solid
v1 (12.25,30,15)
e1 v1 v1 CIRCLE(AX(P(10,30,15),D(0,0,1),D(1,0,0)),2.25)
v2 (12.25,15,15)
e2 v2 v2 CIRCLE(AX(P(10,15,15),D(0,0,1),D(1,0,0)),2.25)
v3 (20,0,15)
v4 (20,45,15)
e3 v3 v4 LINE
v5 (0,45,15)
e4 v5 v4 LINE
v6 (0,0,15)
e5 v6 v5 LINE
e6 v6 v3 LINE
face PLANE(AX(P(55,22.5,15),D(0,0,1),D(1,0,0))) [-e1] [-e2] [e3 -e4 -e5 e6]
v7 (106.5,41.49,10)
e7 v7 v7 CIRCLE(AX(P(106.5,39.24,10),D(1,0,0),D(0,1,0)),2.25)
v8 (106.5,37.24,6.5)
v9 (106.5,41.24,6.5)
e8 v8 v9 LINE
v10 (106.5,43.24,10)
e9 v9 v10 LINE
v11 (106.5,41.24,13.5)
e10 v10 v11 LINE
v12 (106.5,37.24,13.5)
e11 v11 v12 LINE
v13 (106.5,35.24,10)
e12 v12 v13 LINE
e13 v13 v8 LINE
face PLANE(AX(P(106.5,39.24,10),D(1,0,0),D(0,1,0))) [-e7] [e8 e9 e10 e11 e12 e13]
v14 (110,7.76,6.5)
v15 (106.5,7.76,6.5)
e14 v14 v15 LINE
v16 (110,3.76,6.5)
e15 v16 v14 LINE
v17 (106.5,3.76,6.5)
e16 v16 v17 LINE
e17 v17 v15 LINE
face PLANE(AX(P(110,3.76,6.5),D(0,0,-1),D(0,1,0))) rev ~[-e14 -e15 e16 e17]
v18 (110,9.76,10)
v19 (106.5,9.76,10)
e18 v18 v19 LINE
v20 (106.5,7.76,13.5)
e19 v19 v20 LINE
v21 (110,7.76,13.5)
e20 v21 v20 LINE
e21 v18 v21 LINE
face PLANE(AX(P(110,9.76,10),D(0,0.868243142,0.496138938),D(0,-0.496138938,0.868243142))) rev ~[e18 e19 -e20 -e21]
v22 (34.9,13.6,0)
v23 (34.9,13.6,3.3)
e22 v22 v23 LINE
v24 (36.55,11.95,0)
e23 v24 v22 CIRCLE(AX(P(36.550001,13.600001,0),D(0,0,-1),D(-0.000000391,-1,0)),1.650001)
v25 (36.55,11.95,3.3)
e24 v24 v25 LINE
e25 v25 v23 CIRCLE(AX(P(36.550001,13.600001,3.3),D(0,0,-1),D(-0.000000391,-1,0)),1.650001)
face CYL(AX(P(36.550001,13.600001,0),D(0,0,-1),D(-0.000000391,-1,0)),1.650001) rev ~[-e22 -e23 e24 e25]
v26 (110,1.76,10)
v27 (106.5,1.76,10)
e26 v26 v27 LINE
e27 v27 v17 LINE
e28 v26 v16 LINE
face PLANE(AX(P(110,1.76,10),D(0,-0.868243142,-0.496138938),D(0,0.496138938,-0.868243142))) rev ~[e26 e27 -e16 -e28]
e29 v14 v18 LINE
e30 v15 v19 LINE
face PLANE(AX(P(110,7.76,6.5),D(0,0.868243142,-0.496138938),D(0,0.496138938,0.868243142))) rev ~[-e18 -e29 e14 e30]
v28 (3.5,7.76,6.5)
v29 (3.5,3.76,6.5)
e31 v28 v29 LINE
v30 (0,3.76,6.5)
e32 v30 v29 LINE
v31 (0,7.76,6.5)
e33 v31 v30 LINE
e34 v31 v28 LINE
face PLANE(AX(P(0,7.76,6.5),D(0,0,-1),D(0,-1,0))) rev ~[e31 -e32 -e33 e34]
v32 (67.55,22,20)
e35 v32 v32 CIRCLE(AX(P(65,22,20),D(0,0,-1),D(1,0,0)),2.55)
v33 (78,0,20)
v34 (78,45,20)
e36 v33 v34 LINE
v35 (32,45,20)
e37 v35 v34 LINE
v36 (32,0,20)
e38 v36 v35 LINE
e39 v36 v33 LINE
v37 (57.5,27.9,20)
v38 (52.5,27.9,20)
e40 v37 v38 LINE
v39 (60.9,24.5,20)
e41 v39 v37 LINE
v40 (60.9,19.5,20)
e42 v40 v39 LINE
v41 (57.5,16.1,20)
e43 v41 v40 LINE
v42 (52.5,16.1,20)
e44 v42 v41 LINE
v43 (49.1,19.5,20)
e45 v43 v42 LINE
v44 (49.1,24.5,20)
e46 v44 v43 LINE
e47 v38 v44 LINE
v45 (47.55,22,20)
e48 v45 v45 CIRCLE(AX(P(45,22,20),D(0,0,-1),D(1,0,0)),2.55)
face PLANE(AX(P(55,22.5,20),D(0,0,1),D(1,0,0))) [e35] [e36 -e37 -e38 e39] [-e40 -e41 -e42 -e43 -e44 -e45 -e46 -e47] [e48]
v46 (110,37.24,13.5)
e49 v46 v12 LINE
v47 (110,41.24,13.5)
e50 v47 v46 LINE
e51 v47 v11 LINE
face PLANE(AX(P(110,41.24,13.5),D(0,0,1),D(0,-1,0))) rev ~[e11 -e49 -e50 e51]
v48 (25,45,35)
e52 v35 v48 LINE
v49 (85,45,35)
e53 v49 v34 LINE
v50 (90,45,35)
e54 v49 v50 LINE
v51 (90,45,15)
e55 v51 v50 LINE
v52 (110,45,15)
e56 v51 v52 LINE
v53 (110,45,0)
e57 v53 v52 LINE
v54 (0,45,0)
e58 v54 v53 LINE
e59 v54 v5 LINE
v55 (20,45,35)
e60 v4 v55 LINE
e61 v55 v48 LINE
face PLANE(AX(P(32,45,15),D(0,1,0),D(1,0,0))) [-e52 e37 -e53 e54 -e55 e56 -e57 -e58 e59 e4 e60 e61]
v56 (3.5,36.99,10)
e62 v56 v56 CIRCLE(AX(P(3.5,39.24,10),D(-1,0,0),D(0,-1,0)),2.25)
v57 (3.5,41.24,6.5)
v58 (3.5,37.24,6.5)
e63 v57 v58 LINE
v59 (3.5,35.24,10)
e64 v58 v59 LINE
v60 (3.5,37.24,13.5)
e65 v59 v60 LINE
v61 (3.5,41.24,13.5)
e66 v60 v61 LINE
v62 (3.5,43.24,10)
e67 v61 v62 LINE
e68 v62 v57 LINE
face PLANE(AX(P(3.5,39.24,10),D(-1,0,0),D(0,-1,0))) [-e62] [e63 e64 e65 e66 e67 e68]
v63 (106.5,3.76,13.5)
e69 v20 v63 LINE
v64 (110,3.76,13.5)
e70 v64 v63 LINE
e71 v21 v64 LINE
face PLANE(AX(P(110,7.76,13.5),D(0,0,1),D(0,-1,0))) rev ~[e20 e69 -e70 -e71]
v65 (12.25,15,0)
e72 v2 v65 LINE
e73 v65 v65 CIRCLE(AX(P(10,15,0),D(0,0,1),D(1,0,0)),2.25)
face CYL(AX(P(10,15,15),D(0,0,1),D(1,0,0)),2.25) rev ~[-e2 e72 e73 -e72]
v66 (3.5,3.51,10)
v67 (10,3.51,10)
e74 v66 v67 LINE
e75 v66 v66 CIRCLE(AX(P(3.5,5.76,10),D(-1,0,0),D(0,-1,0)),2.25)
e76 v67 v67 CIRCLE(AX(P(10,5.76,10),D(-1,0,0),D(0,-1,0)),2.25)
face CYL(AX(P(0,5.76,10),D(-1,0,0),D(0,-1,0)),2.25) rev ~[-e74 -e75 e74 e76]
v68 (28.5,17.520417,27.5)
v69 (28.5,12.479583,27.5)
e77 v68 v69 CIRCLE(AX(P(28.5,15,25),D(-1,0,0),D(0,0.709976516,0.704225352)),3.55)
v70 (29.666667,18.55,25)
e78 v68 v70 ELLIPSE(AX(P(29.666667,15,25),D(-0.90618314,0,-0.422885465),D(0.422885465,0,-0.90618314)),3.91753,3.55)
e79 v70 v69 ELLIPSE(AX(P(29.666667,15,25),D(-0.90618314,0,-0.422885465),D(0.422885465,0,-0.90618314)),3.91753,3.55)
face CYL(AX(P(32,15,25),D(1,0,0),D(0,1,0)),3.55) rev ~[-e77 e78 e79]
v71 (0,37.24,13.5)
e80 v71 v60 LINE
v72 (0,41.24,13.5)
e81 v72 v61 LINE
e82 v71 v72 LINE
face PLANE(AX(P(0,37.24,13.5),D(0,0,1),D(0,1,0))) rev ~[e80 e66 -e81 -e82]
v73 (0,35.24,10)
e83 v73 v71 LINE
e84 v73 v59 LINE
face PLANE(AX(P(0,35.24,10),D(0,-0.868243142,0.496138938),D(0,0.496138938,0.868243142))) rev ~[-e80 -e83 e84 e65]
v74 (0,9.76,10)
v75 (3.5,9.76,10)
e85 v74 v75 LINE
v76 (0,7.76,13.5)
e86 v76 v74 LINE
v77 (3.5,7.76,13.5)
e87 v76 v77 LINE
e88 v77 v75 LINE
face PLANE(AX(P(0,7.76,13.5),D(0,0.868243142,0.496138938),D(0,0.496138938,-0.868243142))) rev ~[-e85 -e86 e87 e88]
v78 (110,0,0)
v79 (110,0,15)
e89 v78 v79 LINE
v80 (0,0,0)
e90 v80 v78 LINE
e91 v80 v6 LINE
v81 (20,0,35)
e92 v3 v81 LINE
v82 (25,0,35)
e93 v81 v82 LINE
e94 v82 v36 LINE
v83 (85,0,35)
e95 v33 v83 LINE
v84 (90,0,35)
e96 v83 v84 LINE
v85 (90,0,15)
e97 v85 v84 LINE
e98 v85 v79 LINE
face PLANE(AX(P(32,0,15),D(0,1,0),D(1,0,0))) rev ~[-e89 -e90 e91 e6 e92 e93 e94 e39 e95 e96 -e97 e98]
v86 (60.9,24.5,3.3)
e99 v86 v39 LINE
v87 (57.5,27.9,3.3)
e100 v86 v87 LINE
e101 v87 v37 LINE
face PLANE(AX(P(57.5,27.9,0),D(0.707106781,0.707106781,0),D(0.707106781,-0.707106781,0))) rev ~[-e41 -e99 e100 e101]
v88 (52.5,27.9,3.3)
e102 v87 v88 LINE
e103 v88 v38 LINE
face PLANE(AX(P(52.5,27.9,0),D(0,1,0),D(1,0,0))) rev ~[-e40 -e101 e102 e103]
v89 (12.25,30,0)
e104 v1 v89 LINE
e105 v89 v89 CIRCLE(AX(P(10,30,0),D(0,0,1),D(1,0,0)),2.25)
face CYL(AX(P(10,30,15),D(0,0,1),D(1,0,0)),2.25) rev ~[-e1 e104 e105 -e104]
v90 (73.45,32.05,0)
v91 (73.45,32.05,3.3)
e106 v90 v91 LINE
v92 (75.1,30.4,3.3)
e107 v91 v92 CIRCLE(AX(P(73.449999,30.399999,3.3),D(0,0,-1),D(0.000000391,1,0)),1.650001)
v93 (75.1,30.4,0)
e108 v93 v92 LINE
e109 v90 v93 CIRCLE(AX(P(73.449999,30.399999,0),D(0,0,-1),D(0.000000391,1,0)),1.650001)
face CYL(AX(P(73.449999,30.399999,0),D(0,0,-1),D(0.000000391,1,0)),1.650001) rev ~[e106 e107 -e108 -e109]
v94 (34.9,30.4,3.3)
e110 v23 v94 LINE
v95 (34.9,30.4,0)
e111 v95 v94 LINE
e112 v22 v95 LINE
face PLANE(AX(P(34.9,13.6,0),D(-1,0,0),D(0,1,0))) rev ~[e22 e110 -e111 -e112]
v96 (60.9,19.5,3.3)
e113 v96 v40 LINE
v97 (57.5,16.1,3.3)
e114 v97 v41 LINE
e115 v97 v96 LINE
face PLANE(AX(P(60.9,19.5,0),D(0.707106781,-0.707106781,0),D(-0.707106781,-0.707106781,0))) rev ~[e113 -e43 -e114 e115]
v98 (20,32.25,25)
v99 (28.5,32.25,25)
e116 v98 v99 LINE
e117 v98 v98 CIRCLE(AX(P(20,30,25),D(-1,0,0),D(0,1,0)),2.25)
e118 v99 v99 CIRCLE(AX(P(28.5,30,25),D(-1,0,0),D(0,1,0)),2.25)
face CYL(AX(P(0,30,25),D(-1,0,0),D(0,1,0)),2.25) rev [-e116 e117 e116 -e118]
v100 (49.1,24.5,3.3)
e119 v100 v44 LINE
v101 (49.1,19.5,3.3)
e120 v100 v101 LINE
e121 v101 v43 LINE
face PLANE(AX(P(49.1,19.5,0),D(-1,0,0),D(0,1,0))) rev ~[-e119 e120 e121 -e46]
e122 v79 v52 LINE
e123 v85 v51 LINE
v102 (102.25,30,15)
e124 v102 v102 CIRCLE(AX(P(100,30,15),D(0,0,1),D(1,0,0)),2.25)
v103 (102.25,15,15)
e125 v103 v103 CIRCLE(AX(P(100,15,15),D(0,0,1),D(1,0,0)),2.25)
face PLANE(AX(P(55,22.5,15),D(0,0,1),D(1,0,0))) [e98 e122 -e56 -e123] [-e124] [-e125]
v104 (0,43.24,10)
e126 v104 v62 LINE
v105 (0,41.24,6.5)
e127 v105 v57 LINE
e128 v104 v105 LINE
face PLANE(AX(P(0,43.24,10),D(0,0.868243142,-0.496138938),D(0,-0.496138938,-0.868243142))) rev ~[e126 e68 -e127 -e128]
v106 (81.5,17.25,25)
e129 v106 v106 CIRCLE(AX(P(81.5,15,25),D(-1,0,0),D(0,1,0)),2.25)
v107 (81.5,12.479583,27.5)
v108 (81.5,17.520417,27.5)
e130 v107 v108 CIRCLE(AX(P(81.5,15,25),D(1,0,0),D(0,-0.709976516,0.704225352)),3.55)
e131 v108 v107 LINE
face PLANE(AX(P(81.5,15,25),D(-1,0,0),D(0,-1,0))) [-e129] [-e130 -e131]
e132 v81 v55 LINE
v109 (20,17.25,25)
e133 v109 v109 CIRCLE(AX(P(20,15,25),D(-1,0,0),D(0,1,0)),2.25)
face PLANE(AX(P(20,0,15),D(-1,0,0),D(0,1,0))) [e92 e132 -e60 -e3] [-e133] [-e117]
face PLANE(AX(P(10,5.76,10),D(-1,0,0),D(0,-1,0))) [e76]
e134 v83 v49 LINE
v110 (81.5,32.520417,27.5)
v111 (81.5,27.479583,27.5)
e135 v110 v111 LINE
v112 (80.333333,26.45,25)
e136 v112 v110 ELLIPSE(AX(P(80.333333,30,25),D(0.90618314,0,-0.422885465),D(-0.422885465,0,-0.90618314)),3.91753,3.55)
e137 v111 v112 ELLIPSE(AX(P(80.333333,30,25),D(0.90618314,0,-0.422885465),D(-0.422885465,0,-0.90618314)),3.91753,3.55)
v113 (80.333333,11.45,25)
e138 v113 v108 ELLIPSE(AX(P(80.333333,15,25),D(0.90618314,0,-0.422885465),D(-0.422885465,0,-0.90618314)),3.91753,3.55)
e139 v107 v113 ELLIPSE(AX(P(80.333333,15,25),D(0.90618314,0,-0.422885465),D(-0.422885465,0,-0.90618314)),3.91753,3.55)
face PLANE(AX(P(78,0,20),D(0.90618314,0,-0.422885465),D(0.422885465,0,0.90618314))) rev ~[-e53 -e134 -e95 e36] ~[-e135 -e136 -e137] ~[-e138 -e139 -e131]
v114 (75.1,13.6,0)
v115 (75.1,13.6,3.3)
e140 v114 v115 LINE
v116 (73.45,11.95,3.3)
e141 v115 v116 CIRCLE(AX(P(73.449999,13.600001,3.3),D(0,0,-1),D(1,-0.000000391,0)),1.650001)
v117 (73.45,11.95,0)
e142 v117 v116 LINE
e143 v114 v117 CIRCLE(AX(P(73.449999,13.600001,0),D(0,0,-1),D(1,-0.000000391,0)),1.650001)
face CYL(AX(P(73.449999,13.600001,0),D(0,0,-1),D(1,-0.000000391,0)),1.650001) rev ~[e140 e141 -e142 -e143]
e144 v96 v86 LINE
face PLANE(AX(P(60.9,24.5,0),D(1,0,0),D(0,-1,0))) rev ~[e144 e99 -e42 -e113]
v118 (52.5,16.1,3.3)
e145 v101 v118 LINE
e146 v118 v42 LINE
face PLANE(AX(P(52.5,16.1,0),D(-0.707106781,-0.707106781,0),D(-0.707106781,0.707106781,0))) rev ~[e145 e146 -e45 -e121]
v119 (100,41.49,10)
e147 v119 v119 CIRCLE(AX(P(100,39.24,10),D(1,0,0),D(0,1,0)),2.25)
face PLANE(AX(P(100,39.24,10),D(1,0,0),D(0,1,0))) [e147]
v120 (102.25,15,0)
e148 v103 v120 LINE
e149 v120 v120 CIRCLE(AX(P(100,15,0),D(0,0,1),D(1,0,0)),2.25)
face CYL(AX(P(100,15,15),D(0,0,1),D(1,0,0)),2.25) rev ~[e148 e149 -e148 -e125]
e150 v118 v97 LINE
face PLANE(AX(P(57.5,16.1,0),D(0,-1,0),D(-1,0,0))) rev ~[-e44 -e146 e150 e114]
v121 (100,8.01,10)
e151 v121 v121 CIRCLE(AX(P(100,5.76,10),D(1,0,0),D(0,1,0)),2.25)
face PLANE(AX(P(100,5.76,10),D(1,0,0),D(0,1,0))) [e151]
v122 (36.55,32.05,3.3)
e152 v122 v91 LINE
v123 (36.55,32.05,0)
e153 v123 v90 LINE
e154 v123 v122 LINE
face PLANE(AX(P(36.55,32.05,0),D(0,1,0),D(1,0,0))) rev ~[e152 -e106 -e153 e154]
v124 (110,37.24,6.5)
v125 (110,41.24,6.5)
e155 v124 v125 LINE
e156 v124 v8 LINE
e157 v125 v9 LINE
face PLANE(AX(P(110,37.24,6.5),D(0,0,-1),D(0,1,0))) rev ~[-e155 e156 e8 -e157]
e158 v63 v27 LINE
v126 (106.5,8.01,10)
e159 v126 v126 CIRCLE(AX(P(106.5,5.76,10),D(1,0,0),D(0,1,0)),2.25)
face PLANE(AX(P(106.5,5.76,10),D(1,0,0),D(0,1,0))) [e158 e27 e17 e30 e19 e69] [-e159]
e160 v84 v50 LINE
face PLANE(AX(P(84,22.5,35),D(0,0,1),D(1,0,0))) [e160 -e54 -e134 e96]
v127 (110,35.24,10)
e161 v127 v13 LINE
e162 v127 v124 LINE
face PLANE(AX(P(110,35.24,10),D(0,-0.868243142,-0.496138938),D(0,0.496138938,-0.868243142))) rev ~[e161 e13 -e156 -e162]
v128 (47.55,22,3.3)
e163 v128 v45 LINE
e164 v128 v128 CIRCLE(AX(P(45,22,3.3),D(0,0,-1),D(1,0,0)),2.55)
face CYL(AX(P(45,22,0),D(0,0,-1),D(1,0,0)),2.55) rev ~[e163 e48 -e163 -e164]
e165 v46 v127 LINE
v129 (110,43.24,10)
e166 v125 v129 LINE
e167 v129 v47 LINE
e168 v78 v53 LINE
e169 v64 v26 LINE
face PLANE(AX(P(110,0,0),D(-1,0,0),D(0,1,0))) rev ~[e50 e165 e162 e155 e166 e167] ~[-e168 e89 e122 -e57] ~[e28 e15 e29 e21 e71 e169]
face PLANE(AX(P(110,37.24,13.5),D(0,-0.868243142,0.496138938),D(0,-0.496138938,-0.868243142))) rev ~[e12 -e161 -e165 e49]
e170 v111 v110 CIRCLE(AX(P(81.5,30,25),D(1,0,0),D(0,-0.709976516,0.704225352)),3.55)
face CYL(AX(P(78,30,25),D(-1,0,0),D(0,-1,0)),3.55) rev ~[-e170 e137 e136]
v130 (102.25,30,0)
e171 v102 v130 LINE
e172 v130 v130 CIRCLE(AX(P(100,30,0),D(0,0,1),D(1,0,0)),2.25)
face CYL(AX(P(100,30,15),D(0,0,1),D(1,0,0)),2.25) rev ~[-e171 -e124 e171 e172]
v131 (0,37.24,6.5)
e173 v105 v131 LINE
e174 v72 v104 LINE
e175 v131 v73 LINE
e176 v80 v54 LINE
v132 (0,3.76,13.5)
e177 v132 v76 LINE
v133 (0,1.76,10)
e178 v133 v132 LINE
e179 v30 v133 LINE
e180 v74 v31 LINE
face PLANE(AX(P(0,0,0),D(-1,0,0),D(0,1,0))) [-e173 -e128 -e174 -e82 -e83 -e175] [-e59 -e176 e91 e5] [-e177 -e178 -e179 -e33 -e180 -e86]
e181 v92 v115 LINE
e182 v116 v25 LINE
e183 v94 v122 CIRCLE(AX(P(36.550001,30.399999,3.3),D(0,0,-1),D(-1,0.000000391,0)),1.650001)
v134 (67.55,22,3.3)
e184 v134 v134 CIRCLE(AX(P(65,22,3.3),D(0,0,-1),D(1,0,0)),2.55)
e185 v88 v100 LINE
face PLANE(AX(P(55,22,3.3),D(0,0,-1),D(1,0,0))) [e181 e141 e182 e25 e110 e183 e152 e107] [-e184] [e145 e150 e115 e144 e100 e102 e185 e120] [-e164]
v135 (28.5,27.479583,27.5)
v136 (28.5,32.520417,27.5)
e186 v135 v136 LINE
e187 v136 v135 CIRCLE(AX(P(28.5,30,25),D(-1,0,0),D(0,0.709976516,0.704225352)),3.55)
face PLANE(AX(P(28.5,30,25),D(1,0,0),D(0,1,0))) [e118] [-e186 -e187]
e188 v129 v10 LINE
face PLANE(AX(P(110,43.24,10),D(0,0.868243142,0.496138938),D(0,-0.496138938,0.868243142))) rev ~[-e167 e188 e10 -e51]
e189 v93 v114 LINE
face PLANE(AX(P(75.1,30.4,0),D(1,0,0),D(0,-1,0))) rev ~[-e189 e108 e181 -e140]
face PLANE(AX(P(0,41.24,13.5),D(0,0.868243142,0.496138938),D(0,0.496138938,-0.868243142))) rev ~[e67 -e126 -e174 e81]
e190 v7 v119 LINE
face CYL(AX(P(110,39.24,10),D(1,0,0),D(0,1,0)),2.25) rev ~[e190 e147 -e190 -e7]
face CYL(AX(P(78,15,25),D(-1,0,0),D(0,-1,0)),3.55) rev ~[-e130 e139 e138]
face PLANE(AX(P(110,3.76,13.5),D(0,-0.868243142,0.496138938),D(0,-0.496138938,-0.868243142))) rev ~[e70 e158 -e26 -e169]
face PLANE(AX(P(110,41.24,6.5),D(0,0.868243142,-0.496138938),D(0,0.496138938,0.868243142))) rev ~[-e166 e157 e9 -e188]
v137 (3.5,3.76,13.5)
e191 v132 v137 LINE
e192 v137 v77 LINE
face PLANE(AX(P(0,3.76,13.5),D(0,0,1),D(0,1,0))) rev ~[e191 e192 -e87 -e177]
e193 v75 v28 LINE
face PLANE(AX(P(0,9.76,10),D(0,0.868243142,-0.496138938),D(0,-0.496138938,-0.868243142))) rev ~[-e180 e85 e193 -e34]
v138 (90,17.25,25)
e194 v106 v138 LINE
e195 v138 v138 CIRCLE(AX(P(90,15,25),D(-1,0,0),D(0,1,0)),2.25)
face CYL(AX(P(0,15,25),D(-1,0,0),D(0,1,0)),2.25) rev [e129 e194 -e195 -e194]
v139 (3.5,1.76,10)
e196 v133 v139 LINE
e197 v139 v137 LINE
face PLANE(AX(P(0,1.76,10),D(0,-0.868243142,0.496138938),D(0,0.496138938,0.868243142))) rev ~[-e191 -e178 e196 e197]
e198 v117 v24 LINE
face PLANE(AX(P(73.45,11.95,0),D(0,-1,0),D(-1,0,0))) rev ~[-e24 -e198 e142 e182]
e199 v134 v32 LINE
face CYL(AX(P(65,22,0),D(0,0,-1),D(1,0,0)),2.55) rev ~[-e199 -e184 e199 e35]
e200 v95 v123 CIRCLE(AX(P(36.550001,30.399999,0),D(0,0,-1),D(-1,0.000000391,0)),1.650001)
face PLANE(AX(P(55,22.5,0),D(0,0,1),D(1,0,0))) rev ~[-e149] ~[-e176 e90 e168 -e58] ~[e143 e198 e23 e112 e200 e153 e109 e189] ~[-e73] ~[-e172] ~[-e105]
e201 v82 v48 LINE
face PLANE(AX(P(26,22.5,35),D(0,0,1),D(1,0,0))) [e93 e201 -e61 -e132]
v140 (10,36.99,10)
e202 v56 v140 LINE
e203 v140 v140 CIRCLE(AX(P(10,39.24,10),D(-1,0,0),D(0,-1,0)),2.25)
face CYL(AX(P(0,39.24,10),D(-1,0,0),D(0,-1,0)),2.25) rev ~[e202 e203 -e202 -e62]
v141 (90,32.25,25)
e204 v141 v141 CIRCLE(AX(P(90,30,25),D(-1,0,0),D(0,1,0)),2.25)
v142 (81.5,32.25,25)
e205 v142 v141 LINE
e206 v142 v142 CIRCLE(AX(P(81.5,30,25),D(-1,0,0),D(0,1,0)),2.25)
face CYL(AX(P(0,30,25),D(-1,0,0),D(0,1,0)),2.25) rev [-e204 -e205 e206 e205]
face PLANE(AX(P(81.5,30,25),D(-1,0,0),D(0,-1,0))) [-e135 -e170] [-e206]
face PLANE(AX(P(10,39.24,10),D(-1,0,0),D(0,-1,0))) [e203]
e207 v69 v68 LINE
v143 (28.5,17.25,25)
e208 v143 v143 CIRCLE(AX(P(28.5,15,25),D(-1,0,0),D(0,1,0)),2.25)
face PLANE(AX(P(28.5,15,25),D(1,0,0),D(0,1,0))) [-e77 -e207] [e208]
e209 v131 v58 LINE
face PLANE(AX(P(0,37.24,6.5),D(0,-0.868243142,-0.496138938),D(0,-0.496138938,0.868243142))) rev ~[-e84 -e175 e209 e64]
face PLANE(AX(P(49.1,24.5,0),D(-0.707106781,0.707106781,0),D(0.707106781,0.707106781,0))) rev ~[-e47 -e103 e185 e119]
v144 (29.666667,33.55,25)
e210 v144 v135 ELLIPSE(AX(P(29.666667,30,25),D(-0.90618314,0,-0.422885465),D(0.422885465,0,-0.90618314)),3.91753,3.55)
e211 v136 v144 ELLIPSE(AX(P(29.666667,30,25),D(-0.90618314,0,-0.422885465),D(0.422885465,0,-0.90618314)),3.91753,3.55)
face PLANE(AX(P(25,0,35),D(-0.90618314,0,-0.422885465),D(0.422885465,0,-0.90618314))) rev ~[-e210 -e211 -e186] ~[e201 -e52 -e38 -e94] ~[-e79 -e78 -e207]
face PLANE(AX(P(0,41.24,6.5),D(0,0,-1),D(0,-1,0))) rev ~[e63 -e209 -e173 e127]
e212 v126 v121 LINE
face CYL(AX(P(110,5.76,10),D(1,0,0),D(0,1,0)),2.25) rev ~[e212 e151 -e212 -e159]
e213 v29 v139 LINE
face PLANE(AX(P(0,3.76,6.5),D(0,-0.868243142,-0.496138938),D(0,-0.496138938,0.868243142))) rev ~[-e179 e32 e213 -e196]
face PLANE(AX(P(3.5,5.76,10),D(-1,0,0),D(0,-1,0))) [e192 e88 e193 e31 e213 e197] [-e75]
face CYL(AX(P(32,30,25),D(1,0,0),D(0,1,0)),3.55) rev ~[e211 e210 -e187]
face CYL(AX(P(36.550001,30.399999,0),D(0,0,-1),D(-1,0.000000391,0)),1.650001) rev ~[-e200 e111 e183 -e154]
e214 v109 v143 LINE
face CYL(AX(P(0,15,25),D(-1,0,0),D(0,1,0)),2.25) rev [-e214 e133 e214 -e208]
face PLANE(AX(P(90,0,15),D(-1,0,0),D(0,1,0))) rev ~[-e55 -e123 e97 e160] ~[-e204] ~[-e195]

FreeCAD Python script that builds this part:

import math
import FreeCAD as App
import Part
import Sketcher

V = App.Vector

doc = App.newDocument("Part")
body = doc.addObject("PartDesign::Body", "Body")

# Sketch on XY plane
sketch1 = body.newObject("Sketcher::SketchObject", "Sketch")
sketch1.AttachmentSupport = (doc.getObject("XY_Plane"), [""])
sketch1.MapMode = "FlatFace"
sketch1.addGeometry(Part.LineSegment(V(0, 45, 0), V(0, 0, 0)), False)
sketch1.addGeometry(Part.LineSegment(V(0, 0, 0), V(110, 0, 0)), False)
sketch1.addGeometry(Part.LineSegment(V(110, 0, 0), V(110, 45, 0)), False)
sketch1.addGeometry(Part.LineSegment(V(110, 45, 0), V(0, 45, 0)), False)
sketch1.addConstraint(Sketcher.Constraint("Coincident", 0, 2, 1, 1))
sketch1.addConstraint(Sketcher.Constraint("Coincident", 1, 2, 2, 1))
sketch1.addConstraint(Sketcher.Constraint("Coincident", 2, 2, 3, 1))
sketch1.addConstraint(Sketcher.Constraint("Coincident", 3, 2, 0, 1))
sketch1.addConstraint(Sketcher.Constraint("Vertical", 0))
sketch1.addConstraint(Sketcher.Constraint("Horizontal", 1))
sketch1.addConstraint(Sketcher.Constraint("Vertical", 2))
sketch1.addConstraint(Sketcher.Constraint("Horizontal", 3))
sketch1.addConstraint(Sketcher.Constraint("Coincident", 0, 2, -1, 1))
sketch1.addConstraint(Sketcher.Constraint("DistanceX", 1, 1, 1, 2, 110.0))
sketch1.addConstraint(Sketcher.Constraint("DistanceY", 0, 2, 0, 1, 45.0))
pad1 = body.newObject("PartDesign::Pad", "Pad")
pad1.Profile = sketch1
pad1.Length = 15

# Sketch on XY plane
sketch2 = body.newObject("Sketcher::SketchObject", "Sketch001")
sketch2.AttachmentSupport = (doc.getObject("XY_Plane"), [""])
sketch2.MapMode = "FlatFace"
sketch2.AttachmentOffset = App.Placement(V(0, 0, 15), App.Rotation())
sketch2.addGeometry(Part.LineSegment(V(20, 45, 0), V(20, 0, 0)), False)
sketch2.addGeometry(Part.LineSegment(V(20, 0, 0), V(32, 0, 0)), False)
sketch2.addGeometry(Part.LineSegment(V(32, 0, 0), V(32, 45, 0)), False)
sketch2.addGeometry(Part.LineSegment(V(32, 45, 0), V(20, 45, 0)), False)
sketch2.addGeometry(Part.LineSegment(V(78, 45, 0), V(78, 0, 0)), False)
sketch2.addGeometry(Part.LineSegment(V(78, 0, 0), V(90, 0, 0)), False)
sketch2.addGeometry(Part.LineSegment(V(90, 0, 0), V(90, 45, 0)), False)
sketch2.addGeometry(Part.LineSegment(V(90, 45, 0), V(78, 45, 0)), False)
sketch2.addConstraint(Sketcher.Constraint("Coincident", 0, 2, 1, 1))
sketch2.addConstraint(Sketcher.Constraint("Coincident", 1, 2, 2, 1))
sketch2.addConstraint(Sketcher.Constraint("Coincident", 2, 2, 3, 1))
sketch2.addConstraint(Sketcher.Constraint("Coincident", 3, 2, 0, 1))
sketch2.addConstraint(Sketcher.Constraint("Coincident", 4, 2, 5, 1))
sketch2.addConstraint(Sketcher.Constraint("Coincident", 5, 2, 6, 1))
sketch2.addConstraint(Sketcher.Constraint("Coincident", 6, 2, 7, 1))
sketch2.addConstraint(Sketcher.Constraint("Coincident", 7, 2, 4, 1))
sketch2.addConstraint(Sketcher.Constraint("Vertical", 0))
sketch2.addConstraint(Sketcher.Constraint("Horizontal", 1))
sketch2.addConstraint(Sketcher.Constraint("Vertical", 2))
sketch2.addConstraint(Sketcher.Constraint("Horizontal", 3))
sketch2.addConstraint(Sketcher.Constraint("Vertical", 4))
sketch2.addConstraint(Sketcher.Constraint("Horizontal", 5))
sketch2.addConstraint(Sketcher.Constraint("Vertical", 6))
sketch2.addConstraint(Sketcher.Constraint("Horizontal", 7))
sketch2.addConstraint(Sketcher.Constraint("PointOnObject", 0, 2, -1))
sketch2.addConstraint(Sketcher.Constraint("PointOnObject", 4, 2, -1))
sketch2.addConstraint(Sketcher.Constraint("Horizontal", 3, 2, 6, 2))
sketch2.addConstraint(Sketcher.Constraint("Equal", 3, 5))
sketch2.addConstraint(Sketcher.Constraint("DistanceX", 1, 1, 1, 2, 12.0))
sketch2.addConstraint(Sketcher.Constraint("DistanceY", 0, 2, 0, 1, 45.0))
sketch2.addConstraint(Sketcher.Constraint("DistanceX", -1, 1, 0, 2, 20.0))
sketch2.addConstraint(Sketcher.Constraint("DistanceX", -1, 1, 4, 2, 78.0))
pad2 = body.newObject("PartDesign::Pad", "Pad001")
pad2.Profile = sketch2
pad2.Length = 20

# Sketch on YZ plane
sketch3 = body.newObject("Sketcher::SketchObject", "Sketch002")
sketch3.AttachmentSupport = (doc.getObject("YZ_Plane"), [""])
sketch3.MapMode = "FlatFace"
sketch3.addGeometry(Part.Circle(V(15, 25, 0), V(0, 0, 1), 2.2), False)
sketch3.addGeometry(Part.Circle(V(30, 25, 0), V(0, 0, 1), 2.2), False)
sketch3.addConstraint(Sketcher.Constraint("Equal", 0, 1))
sketch3.addConstraint(Sketcher.Constraint("Horizontal", 0, 3, 1, 3))
sketch3.addConstraint(Sketcher.Constraint("Diameter", 0, 4.5))
sketch3.addConstraint(Sketcher.Constraint("DistanceX", -1, 1, 0, 3, 15.0))
sketch3.addConstraint(Sketcher.Constraint("DistanceY", -1, 1, 0, 3, 25.0))
sketch3.addConstraint(Sketcher.Constraint("DistanceX", -1, 1, 1, 3, 30.0))
pocket1 = body.newObject("PartDesign::Pocket", "Pocket")
pocket1.Profile = sketch3
pocket1.Type = "ThroughAll"
pocket1.Reversed = True

# Sketch on XY plane
sketch4 = body.newObject("Sketcher::SketchObject", "Sketch003")
sketch4.AttachmentSupport = (doc.getObject("XY_Plane"), [""])
sketch4.MapMode = "FlatFace"
sketch4.AttachmentOffset = App.Placement(V(0, 0, 15), App.Rotation())
sketch4.addGeometry(Part.Circle(V(10, 30, 0), V(0, 0, 1), 2.2), False)
sketch4.addGeometry(Part.Circle(V(10, 15, 0), V(0, 0, 1), 2.2), False)
sketch4.addConstraint(Sketcher.Constraint("Equal", 0, 1))
sketch4.addConstraint(Sketcher.Constraint("Vertical", 0, 3, 1, 3))
sketch4.addConstraint(Sketcher.Constraint("Diameter", 0, 4.5))
sketch4.addConstraint(Sketcher.Constraint("DistanceX", -1, 1, 0, 3, 10.0))
sketch4.addConstraint(Sketcher.Constraint("DistanceY", -1, 1, 0, 3, 30.0))
sketch4.addConstraint(Sketcher.Constraint("DistanceY", -1, 1, 1, 3, 15.0))
pocket2 = body.newObject("PartDesign::Pocket", "Pocket001")
pocket2.Profile = sketch4
pocket2.Type = "ThroughAll"

# Sketch on XY plane
sketch5 = body.newObject("Sketcher::SketchObject", "Sketch004")
sketch5.AttachmentSupport = (doc.getObject("XY_Plane"), [""])
sketch5.MapMode = "FlatFace"
sketch5.AttachmentOffset = App.Placement(V(0, 0, 15), App.Rotation())
sketch5.addGeometry(Part.Circle(V(100, 30, 0), V(0, 0, 1), 2.2), False)
sketch5.addGeometry(Part.Circle(V(100, 15, 0), V(0, 0, 1), 2.2), False)
sketch5.addConstraint(Sketcher.Constraint("Equal", 0, 1))
sketch5.addConstraint(Sketcher.Constraint("Vertical", 0, 3, 1, 3))
sketch5.addConstraint(Sketcher.Constraint("Diameter", 0, 4.5))
sketch5.addConstraint(Sketcher.Constraint("DistanceX", -1, 1, 0, 3, 100.0))
sketch5.addConstraint(Sketcher.Constraint("DistanceY", -1, 1, 0, 3, 30.0))
sketch5.addConstraint(Sketcher.Constraint("DistanceY", -1, 1, 1, 3, 15.0))
pocket3 = body.newObject("PartDesign::Pocket", "Pocket002")
pocket3.Profile = sketch5
pocket3.Type = "ThroughAll"

# Sketch on YZ plane
sketch6 = body.newObject("Sketcher::SketchObject", "Sketch005")
sketch6.AttachmentSupport = (doc.getObject("YZ_Plane"), [""])
sketch6.MapMode = "FlatFace"
sketch6.AttachmentOffset = App.Placement(V(0, 0, 78), App.Rotation())
sketch6.addGeometry(Part.Circle(V(30, 25, 0), V(0, 0, 1), 3.5), False)
sketch6.addGeometry(Part.Circle(V(15, 25, 0), V(0, 0, 1), 3.5), False)
sketch6.addConstraint(Sketcher.Constraint("Equal", 0, 1))
sketch6.addConstraint(Sketcher.Constraint("Horizontal", 0, 3, 1, 3))
sketch6.addConstraint(Sketcher.Constraint("Diameter", 0, 7.1))
sketch6.addConstraint(Sketcher.Constraint("DistanceX", -1, 1, 0, 3, 30.0))
sketch6.addConstraint(Sketcher.Constraint("DistanceY", -1, 1, 0, 3, 25.0))
sketch6.addConstraint(Sketcher.Constraint("DistanceX", -1, 1, 1, 3, 15.0))
pocket4 = body.newObject("PartDesign::Pocket", "Pocket003")
pocket4.Profile = sketch6
pocket4.Length = 3.5
pocket4.Reversed = True

# Sketch on YZ plane
sketch7 = body.newObject("Sketcher::SketchObject", "Sketch006")
sketch7.AttachmentSupport = (doc.getObject("YZ_Plane"), [""])
sketch7.MapMode = "FlatFace"
sketch7.AttachmentOffset = App.Placement(V(0, 0, 32), App.Rotation())
sketch7.addGeometry(Part.Circle(V(15, 25, 0), V(0, 0, 1), 3.5), False)
sketch7.addGeometry(Part.Circle(V(30, 25, 0), V(0, 0, 1), 3.5), False)
sketch7.addConstraint(Sketcher.Constraint("Equal", 0, 1))
sketch7.addConstraint(Sketcher.Constraint("Horizontal", 0, 3, 1, 3))
sketch7.addConstraint(Sketcher.Constraint("Diameter", 0, 7.1))
sketch7.addConstraint(Sketcher.Constraint("DistanceX", -1, 1, 0, 3, 15.0))
sketch7.addConstraint(Sketcher.Constraint("DistanceY", -1, 1, 0, 3, 25.0))
sketch7.addConstraint(Sketcher.Constraint("DistanceX", -1, 1, 1, 3, 30.0))
pocket5 = body.newObject("PartDesign::Pocket", "Pocket004")
pocket5.Profile = sketch7
pocket5.Length = 3.5

# Sketch on XY plane
sketch8 = body.newObject("Sketcher::SketchObject", "Sketch007")
sketch8.AttachmentSupport = (doc.getObject("XY_Plane"), [""])
sketch8.MapMode = "FlatFace"
sketch8.AttachmentOffset = App.Placement(V(0, 0, 15), App.Rotation())
sketch8.addGeometry(Part.LineSegment(V(32, 45, 0), V(32, 0, 0)), False)
sketch8.addGeometry(Part.LineSegment(V(32, 0, 0), V(78, 0, 0)), False)
sketch8.addGeometry(Part.LineSegment(V(78, 0, 0), V(78, 45, 0)), False)
sketch8.addGeometry(Part.LineSegment(V(78, 45, 0), V(32, 45, 0)), False)
sketch8.addConstraint(Sketcher.Constraint("Coincident", 0, 2, 1, 1))
sketch8.addConstraint(Sketcher.Constraint("Coincident", 1, 2, 2, 1))
sketch8.addConstraint(Sketcher.Constraint("Coincident", 2, 2, 3, 1))
sketch8.addConstraint(Sketcher.Constraint("Coincident", 3, 2, 0, 1))
sketch8.addConstraint(Sketcher.Constraint("Vertical", 0))
sketch8.addConstraint(Sketcher.Constraint("Horizontal", 1))
sketch8.addConstraint(Sketcher.Constraint("Vertical", 2))
sketch8.addConstraint(Sketcher.Constraint("Horizontal", 3))
sketch8.addConstraint(Sketcher.Constraint("PointOnObject", 0, 2, -1))
sketch8.addConstraint(Sketcher.Constraint("DistanceX", 1, 1, 1, 2, 46.0))
sketch8.addConstraint(Sketcher.Constraint("DistanceY", 0, 2, 0, 1, 45.0))
sketch8.addConstraint(Sketcher.Constraint("DistanceX", -1, 1, 0, 2, 32.0))
pad3 = body.newObject("PartDesign::Pad", "Pad002")
pad3.Profile = sketch8
pad3.Length = 5

# Sketch on XZ plane
sketch9 = body.newObject("Sketcher::SketchObject", "Sketch008")
sketch9.AttachmentSupport = (doc.getObject("XZ_Plane"), [""])
sketch9.MapMode = "FlatFace"
sketch9.addGeometry(Part.LineSegment(V(32, 20, 0), V(32, 35, 0)), False)
sketch9.addGeometry(Part.LineSegment(V(32, 35, 0), V(25, 35, 0)), False)
sketch9.addGeometry(Part.LineSegment(V(25, 35, 0), V(32, 20, 0)), False)
sketch9.addGeometry(Part.LineSegment(V(85, 35, 0), V(78, 35, 0)), False)
sketch9.addGeometry(Part.LineSegment(V(78, 35, 0), V(78, 20, 0)), False)
sketch9.addGeometry(Part.LineSegment(V(78, 20, 0), V(85, 35, 0)), False)
sketch9.addConstraint(Sketcher.Constraint("Coincident", 0, 2, 1, 1))
sketch9.addConstraint(Sketcher.Constraint("Coincident", 1, 2, 2, 1))
sketch9.addConstraint(Sketcher.Constraint("Coincident", 2, 2, 0, 1))
sketch9.addConstraint(Sketcher.Constraint("Coincident", 3, 2, 4, 1))
sketch9.addConstraint(Sketcher.Constraint("Coincident", 4, 2, 5, 1))
sketch9.addConstraint(Sketcher.Constraint("Coincident", 5, 2, 3, 1))
sketch9.addConstraint(Sketcher.Constraint("Vertical", 0))
sketch9.addConstraint(Sketcher.Constraint("Horizontal", 1))
sketch9.addConstraint(Sketcher.Constraint("Horizontal", 3))
sketch9.addConstraint(Sketcher.Constraint("Vertical", 4))
sketch9.addConstraint(Sketcher.Constraint("Horizontal", 1, 2, 3, 2))
sketch9.addConstraint(Sketcher.Constraint("Horizontal", 2, 2, 4, 2))
sketch9.addConstraint(Sketcher.Constraint("Equal", 1, 3))
sketch9.addConstraint(Sketcher.Constraint("DistanceX", 1, 2, 1, 1, 7.0))
sketch9.addConstraint(Sketcher.Constraint("DistanceY", 0, 1, 0, 2, 15.0))
sketch9.addConstraint(Sketcher.Constraint("DistanceX", -1, 1, 0, 2, 32.0))
sketch9.addConstraint(Sketcher.Constraint("DistanceY", -1, 1, 0, 2, 35.0))
sketch9.addConstraint(Sketcher.Constraint("DistanceX", -1, 1, 3, 2, 78.0))
pocket6 = body.newObject("PartDesign::Pocket", "Pocket005")
pocket6.Profile = sketch9
pocket6.Type = "ThroughAll"

# Sketch on XY plane
sketch10 = body.newObject("Sketcher::SketchObject", "Sketch009")
sketch10.AttachmentSupport = (doc.getObject("XY_Plane"), [""])
sketch10.MapMode = "FlatFace"
sketch10.addGeometry(Part.LineSegment(V(57.5, 16.1, 0), V(52.5, 16.1, 0)), False)
sketch10.addGeometry(Part.LineSegment(V(52.5, 16.1, 0), V(49.1, 19.5, 0)), False)
sketch10.addGeometry(Part.LineSegment(V(49.1, 19.5, 0), V(49.1, 24.5, 0)), False)
sketch10.addGeometry(Part.LineSegment(V(49.1, 24.5, 0), V(52.5, 27.9, 0)), False)
sketch10.addGeometry(Part.LineSegment(V(52.5, 27.9, 0), V(57.5, 27.9, 0)), False)
sketch10.addGeometry(Part.LineSegment(V(57.5, 27.9, 0), V(60.9, 24.5, 0)), False)
sketch10.addGeometry(Part.LineSegment(V(60.9, 24.5, 0), V(60.9, 19.5, 0)), False)
sketch10.addGeometry(Part.LineSegment(V(60.9, 19.5, 0), V(57.5, 16.1, 0)), False)
sketch10.addGeometry(Part.Circle(V(45, 22, 0), V(0, 0, 1), 2.5), False)
sketch10.addGeometry(Part.Circle(V(65, 22, 0), V(0, 0, 1), 2.5), False)
sketch10.addConstraint(Sketcher.Constraint("Coincident", 0, 2, 1, 1))
sketch10.addConstraint(Sketcher.Constraint("Coincident", 1, 2, 2, 1))
sketch10.addConstraint(Sketcher.Constraint("Coincident", 2, 2, 3, 1))
sketch10.addConstraint(Sketcher.Constraint("Coincident", 3, 2, 4, 1))
sketch10.addConstraint(Sketcher.Constraint("Coincident", 4, 2, 5, 1))
sketch10.addConstraint(Sketcher.Constraint("Coincident", 5, 2, 6, 1))
sketch10.addConstraint(Sketcher.Constraint("Coincident", 6, 2, 7, 1))
sketch10.addConstraint(Sketcher.Constraint("Coincident", 7, 2, 0, 1))
sketch10.addConstraint(Sketcher.Constraint("Horizontal", 0))
sketch10.addConstraint(Sketcher.Constraint("Vertical", 2))
sketch10.addConstraint(Sketcher.Constraint("Horizontal", 4))
sketch10.addConstraint(Sketcher.Constraint("Vertical", 6))
sketch10.addConstraint(Sketcher.Constraint("Equal", 8, 9))
sketch10.addConstraint(Sketcher.Constraint("Perpendicular", 1, 3))
sketch10.addConstraint(Sketcher.Constraint("Perpendicular", 3, 5))
sketch10.addConstraint(Sketcher.Constraint("Perpendicular", 5, 7))
sketch10.addConstraint(Sketcher.Constraint("Horizontal", 8, 3, 9, 3))
sketch10.addConstraint(Sketcher.Constraint("Horizontal", 2, 2, 5, 2))
sketch10.addConstraint(Sketcher.Constraint("Horizontal", 1, 2, 6, 2))
sketch10.addConstraint(Sketcher.Constraint("Vertical", 0, 2, 3, 2))
sketch10.addConstraint(Sketcher.Constraint("Vertical", 4, 2, 7, 2))
sketch10.addConstraint(Sketcher.Constraint("Equal", 4, 2))
sketch10.addConstraint(Sketcher.Constraint("Diameter", 8, 5.1))
sketch10.addConstraint(Sketcher.Constraint("DistanceX", 0, 2, 0, 1, 5.0))
sketch10.addConstraint(Sketcher.Constraint("DistanceX", -1, 1, 8, 3, 45.0))
sketch10.addConstraint(Sketcher.Constraint("DistanceY", -1, 1, 8, 3, 22.0))
sketch10.addConstraint(Sketcher.Constraint("DistanceX", -1, 1, 9, 3, 65.0))
sketch10.addConstraint(Sketcher.Constraint("DistanceX", -1, 1, 0, 2, 52.5))
sketch10.addConstraint(Sketcher.Constraint("DistanceY", -1, 1, 0, 2, 16.1))
sketch10.addConstraint(Sketcher.Constraint("DistanceX", -1, 1, 1, 2, 49.1))
pocket7 = body.newObject("PartDesign::Pocket", "Pocket006")
pocket7.Profile = sketch10
pocket7.Type = "ThroughAll"
pocket7.Reversed = True

# Sketch on XY plane
sketch11 = body.newObject("Sketcher::SketchObject", "Sketch010")
sketch11.AttachmentSupport = (doc.getObject("XY_Plane"), [""])
sketch11.MapMode = "FlatFace"
sketch11.addGeometry(Part.LineSegment(V(73.5, 11.9, 0), V(36.5, 11.9, 0)), False)
sketch11.addGeometry(Part.ArcOfCircle(Part.Circle(V(36.6, 13.6, 0), V(0, 0, 1), 1.7), math.radians(-180), math.radians(-90)), False)
sketch11.addGeometry(Part.LineSegment(V(34.9, 13.6, 0), V(34.9, 30.4, 0)), False)
sketch11.addGeometry(Part.ArcOfCircle(Part.Circle(V(36.6, 30.4, 0), V(0, 0, 1), 1.7), math.radians(90), math.radians(180)), False)
sketch11.addGeometry(Part.LineSegment(V(36.5, 32, 0), V(73.5, 32, 0)), False)
sketch11.addGeometry(Part.ArcOfCircle(Part.Circle(V(73.4, 30.4, 0), V(0, 0, 1), 1.7), math.radians(0), math.radians(90)), False)
sketch11.addGeometry(Part.LineSegment(V(75.1, 30.4, 0), V(75.1, 13.6, 0)), False)
sketch11.addGeometry(Part.ArcOfCircle(Part.Circle(V(73.4, 13.6, 0), V(0, 0, 1), 1.7), math.radians(-90), math.radians(0)), False)
sketch11.addConstraint(Sketcher.Constraint("Tangent", 0, 2, 1, 2))
sketch11.addConstraint(Sketcher.Constraint("Tangent", 1, 1, 2, 1))
sketch11.addConstraint(Sketcher.Constraint("Tangent", 2, 2, 3, 2))
sketch11.addConstraint(Sketcher.Constraint("Tangent", 3, 1, 4, 1))
sketch11.addConstraint(Sketcher.Constraint("Tangent", 4, 2, 5, 2))
sketch11.addConstraint(Sketcher.Constraint("Tangent", 5, 1, 6, 1))
sketch11.addConstraint(Sketcher.Constraint("Tangent", 6, 2, 7, 2))
sketch11.addConstraint(Sketcher.Constraint("Tangent", 7, 1, 0, 1))
sketch11.addConstraint(Sketcher.Constraint("Horizontal", 0))
sketch11.addConstraint(Sketcher.Constraint("Vertical", 2))
sketch11.addConstraint(Sketcher.Constraint("Horizontal", 4))
sketch11.addConstraint(Sketcher.Constraint("Vertical", 6))
sketch11.addConstraint(Sketcher.Constraint("Equal", 1, 3))
sketch11.addConstraint(Sketcher.Constraint("Equal", 3, 5))
sketch11.addConstraint(Sketcher.Constraint("Equal", 5, 7))
sketch11.addConstraint(Sketcher.Constraint("Radius", 1, 1.650001))
sketch11.addConstraint(Sketcher.Constraint("DistanceX", 0, 2, 0, 1, 36.9))
sketch11.addConstraint(Sketcher.Constraint("DistanceY", 2, 1, 2, 2, 16.8))
sketch11.addConstraint(Sketcher.Constraint("DistanceY", -1, 1, 1, 3, 13.600001))
sketch11.addConstraint(Sketcher.Constraint("DistanceX", -1, 1, 1, 1, 34.9))
pocket8 = body.newObject("PartDesign::Pocket", "Pocket007")
pocket8.Profile = sketch11
pocket8.Length = 3.3
pocket8.Reversed = True

# Sketch on YZ plane
sketch12 = body.newObject("Sketcher::SketchObject", "Sketch011")
sketch12.AttachmentSupport = (doc.getObject("YZ_Plane"), [""])
sketch12.MapMode = "FlatFace"
sketch12.addGeometry(Part.Circle(V(39.2, 10, 0), V(0, 0, 1), 2.2), False)
sketch12.addGeometry(Part.Circle(V(5.8, 10, 0), V(0, 0, 1), 2.2), False)
sketch12.addConstraint(Sketcher.Constraint("Equal", 0, 1))
sketch12.addConstraint(Sketcher.Constraint("Horizontal", 0, 3, 1, 3))
sketch12.addConstraint(Sketcher.Constraint("Diameter", 0, 4.5))
sketch12.addConstraint(Sketcher.Constraint("DistanceY", -1, 1, 0, 3, 10.0))
sketch12.addConstraint(Sketcher.Constraint("DistanceX", -1, 1, 0, 3, 39.24))
sketch12.addConstraint(Sketcher.Constraint("DistanceX", -1, 1, 1, 3, 5.76))
pocket9 = body.newObject("PartDesign::Pocket", "Pocket008")
pocket9.Profile = sketch12
pocket9.Length = 10
pocket9.Reversed = True

# Sketch on YZ plane
sketch13 = body.newObject("Sketcher::SketchObject", "Sketch012")
sketch13.AttachmentSupport = (doc.getObject("YZ_Plane"), [""])
sketch13.MapMode = "FlatFace"
sketch13.addGeometry(Part.LineSegment(V(37.2, 13.5, 0), V(41.2, 13.5, 0)), False)
sketch13.addGeometry(Part.LineSegment(V(41.2, 13.5, 0), V(43.2, 10, 0)), False)
sketch13.addGeometry(Part.LineSegment(V(43.2, 10, 0), V(41.2, 6.5, 0)), False)
sketch13.addGeometry(Part.LineSegment(V(41.2, 6.5, 0), V(37.2, 6.5, 0)), False)
sketch13.addGeometry(Part.LineSegment(V(37.2, 6.5, 0), V(35.2, 10, 0)), False)
sketch13.addGeometry(Part.LineSegment(V(35.2, 10, 0), V(37.2, 13.5, 0)), False)
sketch13.addGeometry(Part.LineSegment(V(3.8, 13.5, 0), V(7.8, 13.5, 0)), False)
sketch13.addGeometry(Part.LineSegment(V(7.8, 13.5, 0), V(9.8, 10, 0)), False)
sketch13.addGeometry(Part.LineSegment(V(9.8, 10, 0), V(7.8, 6.5, 0)), False)
sketch13.addGeometry(Part.LineSegment(V(7.8, 6.5, 0), V(3.8, 6.5, 0)), False)
sketch13.addGeometry(Part.LineSegment(V(3.8, 6.5, 0), V(1.8, 10, 0)), False)
sketch13.addGeometry(Part.LineSegment(V(1.8, 10, 0), V(3.8, 13.5, 0)), False)
sketch13.addConstraint(Sketcher.Constraint("Coincident", 0, 2, 1, 1))
sketch13.addConstraint(Sketcher.Constraint("Coincident", 1, 2, 2, 1))
sketch13.addConstraint(Sketcher.Constraint("Coincident", 2, 2, 3, 1))
sketch13.addConstraint(Sketcher.Constraint("Coincident", 3, 2, 4, 1))
sketch13.addConstraint(Sketcher.Constraint("Coincident", 4, 2, 5, 1))
sketch13.addConstraint(Sketcher.Constraint("Coincident", 5, 2, 0, 1))
sketch13.addConstraint(Sketcher.Constraint("Coincident", 6, 2, 7, 1))
sketch13.addConstraint(Sketcher.Constraint("Coincident", 7, 2, 8, 1))
sketch13.addConstraint(Sketcher.Constraint("Coincident", 8, 2, 9, 1))
sketch13.addConstraint(Sketcher.Constraint("Coincident", 9, 2, 10, 1))
sketch13.addConstraint(Sketcher.Constraint("Coincident", 10, 2, 11, 1))
sketch13.addConstraint(Sketcher.Constraint("Coincident", 11, 2, 6, 1))
sketch13.addConstraint(Sketcher.Constraint("Horizontal", 0))
sketch13.addConstraint(Sketcher.Constraint("Horizontal", 3))
sketch13.addConstraint(Sketcher.Constraint("Horizontal", 6))
sketch13.addConstraint(Sketcher.Constraint("Horizontal", 9))
sketch13.addConstraint(Sketcher.Constraint("Parallel", 1, 4))
sketch13.addConstraint(Sketcher.Constraint("Parallel", 2, 5))
sketch13.addConstraint(Sketcher.Constraint("Parallel", 4, 7))
sketch13.addConstraint(Sketcher.Constraint("Parallel", 5, 8))
sketch13.addConstraint(Sketcher.Constraint("Parallel", 7, 10))
sketch13.addConstraint(Sketcher.Constraint("Parallel", 8, 11))
sketch13.addConstraint(Sketcher.Constraint("Horizontal", 1, 2, 4, 2))
sketch13.addConstraint(Sketcher.Constraint("Horizontal", 5, 2, 6, 2))
sketch13.addConstraint(Sketcher.Constraint("Horizontal", 4, 2, 7, 2))
sketch13.addConstraint(Sketcher.Constraint("Horizontal", 3, 2, 8, 2))
sketch13.addConstraint(Sketcher.Constraint("Horizontal", 7, 2, 10, 2))
sketch13.addConstraint(Sketcher.Constraint("Vertical", 0, 2, 2, 2))
sketch13.addConstraint(Sketcher.Constraint("Vertical", 3, 2, 5, 2))
sketch13.addConstraint(Sketcher.Constraint("Equal", 3, 6))
sketch13.addConstraint(Sketcher.Constraint("DistanceX", 0, 1, 0, 2, 4.0))
sketch13.addConstraint(Sketcher.Constraint("DistanceY", -1, 1, 1, 2, 10.0))
sketch13.addConstraint(Sketcher.Constraint("DistanceX", 0, 2, 1, 2, 2.0))
sketch13.addConstraint(Sketcher.Constraint("DistanceY", 2, 2, 0, 2, 7.0))
sketch13.addConstraint(Sketcher.Constraint("DistanceX", -1, 1, 0, 2, 41.24))
sketch13.addConstraint(Sketcher.Constraint("DistanceX", -1, 1, 6, 2, 7.76))
pocket10 = body.newObject("PartDesign::Pocket", "Pocket009")
pocket10.Profile = sketch13
pocket10.Length = 3.5
pocket10.Reversed = True

# Sketch on YZ plane
sketch14 = body.newObject("Sketcher::SketchObject", "Sketch013")
sketch14.AttachmentSupport = (doc.getObject("YZ_Plane"), [""])
sketch14.MapMode = "FlatFace"
sketch14.AttachmentOffset = App.Placement(V(0, 0, 110), App.Rotation())
sketch14.addGeometry(Part.Circle(V(5.8, 10, 0), V(0, 0, 1), 2.2), False)
sketch14.addGeometry(Part.Circle(V(39.2, 10, 0), V(0, 0, 1), 2.2), False)
sketch14.addConstraint(Sketcher.Constraint("Equal", 0, 1))
sketch14.addConstraint(Sketcher.Constraint("Horizontal", 0, 3, 1, 3))
sketch14.addConstraint(Sketcher.Constraint("Diameter", 0, 4.5))
sketch14.addConstraint(Sketcher.Constraint("DistanceY", -1, 1, 0, 3, 10.0))
sketch14.addConstraint(Sketcher.Constraint("DistanceX", -1, 1, 0, 3, 5.76))
sketch14.addConstraint(Sketcher.Constraint("DistanceX", -1, 1, 1, 3, 39.24))
pocket11 = body.newObject("PartDesign::Pocket", "Pocket010")
pocket11.Profile = sketch14
pocket11.Length = 10

# Sketch on YZ plane
sketch15 = body.newObject("Sketcher::SketchObject", "Sketch014")
sketch15.AttachmentSupport = (doc.getObject("YZ_Plane"), [""])
sketch15.MapMode = "FlatFace"
sketch15.AttachmentOffset = App.Placement(V(0, 0, 110), App.Rotation())
sketch15.addGeometry(Part.LineSegment(V(7.8, 13.5, 0), V(3.8, 13.5, 0)), False)
sketch15.addGeometry(Part.LineSegment(V(3.8, 13.5, 0), V(1.8, 10, 0)), False)
sketch15.addGeometry(Part.LineSegment(V(1.8, 10, 0), V(3.8, 6.5, 0)), False)
sketch15.addGeometry(Part.LineSegment(V(3.8, 6.5, 0), V(7.8, 6.5, 0)), False)
sketch15.addGeometry(Part.LineSegment(V(7.8, 6.5, 0), V(9.8, 10, 0)), False)
sketch15.addGeometry(Part.LineSegment(V(9.8, 10, 0), V(7.8, 13.5, 0)), False)
sketch15.addGeometry(Part.LineSegment(V(37.2, 6.5, 0), V(41.2, 6.5, 0)), False)
sketch15.addGeometry(Part.LineSegment(V(41.2, 6.5, 0), V(43.2, 10, 0)), False)
sketch15.addGeometry(Part.LineSegment(V(43.2, 10, 0), V(41.2, 13.5, 0)), False)
sketch15.addGeometry(Part.LineSegment(V(41.2, 13.5, 0), V(37.2, 13.5, 0)), False)
sketch15.addGeometry(Part.LineSegment(V(37.2, 13.5, 0), V(35.2, 10, 0)), False)
sketch15.addGeometry(Part.LineSegment(V(35.2, 10, 0), V(37.2, 6.5, 0)), False)
sketch15.addConstraint(Sketcher.Constraint("Coincident", 0, 2, 1, 1))
sketch15.addConstraint(Sketcher.Constraint("Coincident", 1, 2, 2, 1))
sketch15.addConstraint(Sketcher.Constraint("Coincident", 2, 2, 3, 1))
sketch15.addConstraint(Sketcher.Constraint("Coincident", 3, 2, 4, 1))
sketch15.addConstraint(Sketcher.Constraint("Coincident", 4, 2, 5, 1))
sketch15.addConstraint(Sketcher.Constraint("Coincident", 5, 2, 0, 1))
sketch15.addConstraint(Sketcher.Constraint("Coincident", 6, 2, 7, 1))
sketch15.addConstraint(Sketcher.Constraint("Coincident", 7, 2, 8, 1))
sketch15.addConstraint(Sketcher.Constraint("Coincident", 8, 2, 9, 1))
sketch15.addConstraint(Sketcher.Constraint("Coincident", 9, 2, 10, 1))
sketch15.addConstraint(Sketcher.Constraint("Coincident", 10, 2, 11, 1))
sketch15.addConstraint(Sketcher.Constraint("Coincident", 11, 2, 6, 1))
sketch15.addConstraint(Sketcher.Constraint("Horizontal", 0))
sketch15.addConstraint(Sketcher.Constraint("Horizontal", 3))
sketch15.addConstraint(Sketcher.Constraint("Horizontal", 6))
sketch15.addConstraint(Sketcher.Constraint("Horizontal", 9))
sketch15.addConstraint(Sketcher.Constraint("Parallel", 1, 4))
sketch15.addConstraint(Sketcher.Constraint("Parallel", 2, 5))
sketch15.addConstraint(Sketcher.Constraint("Parallel", 4, 7))
sketch15.addConstraint(Sketcher.Constraint("Parallel", 5, 8))
sketch15.addConstraint(Sketcher.Constraint("Parallel", 7, 10))
sketch15.addConstraint(Sketcher.Constraint("Parallel", 8, 11))
sketch15.addConstraint(Sketcher.Constraint("Horizontal", 1, 2, 4, 2))
sketch15.addConstraint(Sketcher.Constraint("Horizontal", 3, 2, 6, 2))
sketch15.addConstraint(Sketcher.Constraint("Horizontal", 4, 2, 7, 2))
sketch15.addConstraint(Sketcher.Constraint("Horizontal", 5, 2, 8, 2))
sketch15.addConstraint(Sketcher.Constraint("Horizontal", 7, 2, 10, 2))
sketch15.addConstraint(Sketcher.Constraint("Vertical", 0, 2, 2, 2))
sketch15.addConstraint(Sketcher.Constraint("Vertical", 3, 2, 5, 2))
sketch15.addConstraint(Sketcher.Constraint("Equal", 3, 6))
sketch15.addConstraint(Sketcher.Constraint("DistanceX", 0, 2, 0, 1, 4.0))
sketch15.addConstraint(Sketcher.Constraint("DistanceY", -1, 1, 1, 2, 10.0))
sketch15.addConstraint(Sketcher.Constraint("DistanceX", 1, 2, 0, 2, 2.0))
sketch15.addConstraint(Sketcher.Constraint("DistanceY", 2, 2, 0, 2, 7.0))
sketch15.addConstraint(Sketcher.Constraint("DistanceX", -1, 1, 0, 2, 3.76))
sketch15.addConstraint(Sketcher.Constraint("DistanceX", -1, 1, 6, 2, 41.24))
pocket12 = body.newObject("PartDesign::Pocket", "Pocket011")
pocket12.Profile = sketch15
pocket12.Length = 3.5

doc.recompute()
